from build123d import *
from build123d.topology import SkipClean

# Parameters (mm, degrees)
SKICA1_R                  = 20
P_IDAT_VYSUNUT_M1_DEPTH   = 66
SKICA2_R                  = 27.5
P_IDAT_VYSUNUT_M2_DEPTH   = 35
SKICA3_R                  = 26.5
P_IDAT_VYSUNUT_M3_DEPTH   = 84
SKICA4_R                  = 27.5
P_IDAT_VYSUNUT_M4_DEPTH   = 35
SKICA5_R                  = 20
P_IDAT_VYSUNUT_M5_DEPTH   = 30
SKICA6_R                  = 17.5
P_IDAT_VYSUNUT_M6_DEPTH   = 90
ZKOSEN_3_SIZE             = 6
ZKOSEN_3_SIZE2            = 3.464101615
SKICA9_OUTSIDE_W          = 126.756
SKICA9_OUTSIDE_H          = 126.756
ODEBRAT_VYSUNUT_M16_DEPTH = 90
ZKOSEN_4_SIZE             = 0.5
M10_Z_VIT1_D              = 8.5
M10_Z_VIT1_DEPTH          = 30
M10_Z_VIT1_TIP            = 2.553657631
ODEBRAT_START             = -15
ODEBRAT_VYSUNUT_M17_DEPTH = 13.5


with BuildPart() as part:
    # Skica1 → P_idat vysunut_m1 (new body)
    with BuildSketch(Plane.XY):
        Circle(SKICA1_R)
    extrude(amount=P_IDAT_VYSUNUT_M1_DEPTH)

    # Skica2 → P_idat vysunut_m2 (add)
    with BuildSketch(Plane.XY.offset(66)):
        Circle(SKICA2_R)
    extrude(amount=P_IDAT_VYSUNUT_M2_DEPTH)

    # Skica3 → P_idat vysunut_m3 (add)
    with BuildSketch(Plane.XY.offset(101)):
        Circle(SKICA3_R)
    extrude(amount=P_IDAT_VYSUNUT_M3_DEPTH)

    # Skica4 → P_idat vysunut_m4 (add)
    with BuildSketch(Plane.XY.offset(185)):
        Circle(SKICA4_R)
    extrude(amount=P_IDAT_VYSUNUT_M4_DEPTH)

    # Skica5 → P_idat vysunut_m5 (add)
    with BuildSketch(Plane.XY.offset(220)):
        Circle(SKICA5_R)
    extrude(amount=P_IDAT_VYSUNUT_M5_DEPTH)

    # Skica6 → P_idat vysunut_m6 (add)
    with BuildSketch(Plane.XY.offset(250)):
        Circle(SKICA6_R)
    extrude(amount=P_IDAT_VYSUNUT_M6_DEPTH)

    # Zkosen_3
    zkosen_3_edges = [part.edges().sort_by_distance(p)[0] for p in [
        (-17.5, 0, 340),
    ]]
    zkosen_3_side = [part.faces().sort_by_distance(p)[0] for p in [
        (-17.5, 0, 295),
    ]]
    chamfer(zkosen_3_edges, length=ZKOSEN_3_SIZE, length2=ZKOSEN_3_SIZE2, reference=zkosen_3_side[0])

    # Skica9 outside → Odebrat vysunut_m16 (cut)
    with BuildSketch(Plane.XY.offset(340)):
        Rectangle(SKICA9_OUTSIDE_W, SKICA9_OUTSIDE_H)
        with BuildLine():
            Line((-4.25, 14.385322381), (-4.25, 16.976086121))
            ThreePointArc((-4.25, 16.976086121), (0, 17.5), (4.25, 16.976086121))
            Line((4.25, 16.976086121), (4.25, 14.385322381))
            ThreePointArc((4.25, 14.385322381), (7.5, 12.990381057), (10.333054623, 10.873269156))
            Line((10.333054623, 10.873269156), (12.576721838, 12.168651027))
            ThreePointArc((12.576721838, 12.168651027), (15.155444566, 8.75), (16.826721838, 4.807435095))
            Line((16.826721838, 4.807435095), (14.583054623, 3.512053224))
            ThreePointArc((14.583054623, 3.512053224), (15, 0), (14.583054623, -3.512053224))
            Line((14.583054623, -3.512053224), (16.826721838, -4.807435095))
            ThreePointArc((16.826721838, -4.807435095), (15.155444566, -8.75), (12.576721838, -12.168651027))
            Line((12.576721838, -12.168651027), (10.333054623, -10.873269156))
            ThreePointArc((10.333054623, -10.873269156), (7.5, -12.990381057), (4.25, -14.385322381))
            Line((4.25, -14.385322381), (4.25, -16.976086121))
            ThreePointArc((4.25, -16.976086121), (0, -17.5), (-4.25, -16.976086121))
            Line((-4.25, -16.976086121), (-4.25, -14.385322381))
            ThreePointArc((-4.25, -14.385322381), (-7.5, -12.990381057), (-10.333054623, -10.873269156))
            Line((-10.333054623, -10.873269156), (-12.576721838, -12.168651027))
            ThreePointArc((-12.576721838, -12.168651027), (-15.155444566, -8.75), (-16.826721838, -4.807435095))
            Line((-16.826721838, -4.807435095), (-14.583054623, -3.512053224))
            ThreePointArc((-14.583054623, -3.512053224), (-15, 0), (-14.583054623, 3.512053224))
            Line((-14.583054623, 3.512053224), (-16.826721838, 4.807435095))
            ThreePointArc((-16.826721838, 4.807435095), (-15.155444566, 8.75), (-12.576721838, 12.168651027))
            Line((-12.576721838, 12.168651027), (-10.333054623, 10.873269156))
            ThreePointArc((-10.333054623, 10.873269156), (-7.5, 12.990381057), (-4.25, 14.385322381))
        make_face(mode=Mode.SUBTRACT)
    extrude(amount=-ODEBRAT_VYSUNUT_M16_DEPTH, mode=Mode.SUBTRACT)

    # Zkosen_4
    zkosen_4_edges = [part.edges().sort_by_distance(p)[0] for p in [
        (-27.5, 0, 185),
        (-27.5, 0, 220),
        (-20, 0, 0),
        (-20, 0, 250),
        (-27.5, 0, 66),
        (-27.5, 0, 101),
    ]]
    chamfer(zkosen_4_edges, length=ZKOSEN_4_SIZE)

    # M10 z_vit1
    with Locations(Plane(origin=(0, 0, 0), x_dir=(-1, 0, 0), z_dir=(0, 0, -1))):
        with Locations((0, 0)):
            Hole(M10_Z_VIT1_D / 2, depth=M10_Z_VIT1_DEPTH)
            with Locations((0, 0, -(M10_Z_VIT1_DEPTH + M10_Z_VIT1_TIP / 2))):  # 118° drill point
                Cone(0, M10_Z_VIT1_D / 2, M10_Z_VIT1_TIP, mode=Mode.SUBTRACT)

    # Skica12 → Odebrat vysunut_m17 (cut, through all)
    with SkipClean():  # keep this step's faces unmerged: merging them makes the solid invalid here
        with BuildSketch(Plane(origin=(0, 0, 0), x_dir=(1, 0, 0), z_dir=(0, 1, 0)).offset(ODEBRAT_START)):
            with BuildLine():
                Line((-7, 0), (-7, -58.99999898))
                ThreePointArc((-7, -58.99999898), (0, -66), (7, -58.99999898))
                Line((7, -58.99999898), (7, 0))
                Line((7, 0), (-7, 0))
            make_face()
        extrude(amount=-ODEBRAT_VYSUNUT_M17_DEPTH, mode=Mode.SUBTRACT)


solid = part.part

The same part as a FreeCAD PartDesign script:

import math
import FreeCAD as App
import Part
import Sketcher
from FreeCAD import Vector
Q = App.Units.Quantity


def edges_at(feature, points):
    """Names of the edges that pass closest to the given points."""
    edges = feature.Shape.Edges
    near = lambda p: min(range(len(edges)), key=lambda i: edges[i].distToShape(Part.Vertex(*p))[0])
    return sorted({f"Edge{near(p) + 1}" for p in points})

doc = App.newDocument("Part")
body = doc.addObject("PartDesign::Body", "Body")

# Sketch on XY plane
sketch1 = body.newObject("Sketcher::SketchObject", "Sketch")
sketch1.AttachmentSupport = (doc.getObject("XY_Plane"), [""])
sketch1.MapMode = "FlatFace"
sketch1.addGeometry(Part.Circle(Vector(0, 0, 0), Vector(0, 0, 1), 20), False)
sketch1.addConstraint(Sketcher.Constraint("Coincident", 0, 3, -1, 1))
sketch1.addConstraint(Sketcher.Constraint("Diameter", 0, 40.0))
pad1 = body.newObject("PartDesign::Pad", "Pad")
pad1.Profile = sketch1
pad1.Length = 66

# Sketch on XY plane
sketch2 = body.newObject("Sketcher::SketchObject", "Sketch001")
sketch2.AttachmentSupport = (doc.getObject("XY_Plane"), [""])
sketch2.MapMode = "FlatFace"
sketch2.AttachmentOffset = App.Placement(Vector(0, 0, 66), App.Rotation())
sketch2.addGeometry(Part.Circle(Vector(0, 0, 0), Vector(0, 0, 1), 27.5), False)
sketch2.addConstraint(Sketcher.Constraint("Coincident", 0, 3, -1, 1))
sketch2.addConstraint(Sketcher.Constraint("Diameter", 0, 55.0))
pad2 = body.newObject("PartDesign::Pad", "Pad001")
pad2.Profile = sketch2
pad2.Length = 35

# Sketch on XY plane
sketch3 = body.newObject("Sketcher::SketchObject", "Sketch002")
sketch3.AttachmentSupport = (doc.getObject("XY_Plane"), [""])
sketch3.MapMode = "FlatFace"
sketch3.AttachmentOffset = App.Placement(Vector(0, 0, 101), App.Rotation())
sketch3.addGeometry(Part.Circle(Vector(0, 0, 0), Vector(0, 0, 1), 26.5), False)
sketch3.addConstraint(Sketcher.Constraint("Coincident", 0, 3, -1, 1))
sketch3.addConstraint(Sketcher.Constraint("Diameter", 0, 53.0))
pad3 = body.newObject("PartDesign::Pad", "Pad002")
pad3.Profile = sketch3
pad3.Length = 84

# Sketch on XY plane
sketch4 = body.newObject("Sketcher::SketchObject", "Sketch003")
sketch4.AttachmentSupport = (doc.getObject("XY_Plane"), [""])
sketch4.MapMode = "FlatFace"
sketch4.AttachmentOffset = App.Placement(Vector(0, 0, 185), App.Rotation())
sketch4.addGeometry(Part.Circle(Vector(0, 0, 0), Vector(0, 0, 1), 27.5), False)
sketch4.addConstraint(Sketcher.Constraint("Coincident", 0, 3, -1, 1))
sketch4.addConstraint(Sketcher.Constraint("Diameter", 0, 55.0))
pad4 = body.newObject("PartDesign::Pad", "Pad003")
pad4.Profile = sketch4
pad4.Length = 35

# Sketch on XY plane
sketch5 = body.newObject("Sketcher::SketchObject", "Sketch004")
sketch5.AttachmentSupport = (doc.getObject("XY_Plane"), [""])
sketch5.MapMode = "FlatFace"
sketch5.AttachmentOffset = App.Placement(Vector(0, 0, 220), App.Rotation())
sketch5.addGeometry(Part.Circle(Vector(0, 0, 0), Vector(0, 0, 1), 20), False)
sketch5.addConstraint(Sketcher.Constraint("Coincident", 0, 3, -1, 1))
sketch5.addConstraint(Sketcher.Constraint("Diameter", 0, 40.0))
pad5 = body.newObject("PartDesign::Pad", "Pad004")
pad5.Profile = sketch5
pad5.Length = 30

# Sketch on XY plane
sketch6 = body.newObject("Sketcher::SketchObject", "Sketch005")
sketch6.AttachmentSupport = (doc.getObject("XY_Plane"), [""])
sketch6.MapMode = "FlatFace"
sketch6.AttachmentOffset = App.Placement(Vector(0, 0, 250), App.Rotation())
sketch6.addGeometry(Part.Circle(Vector(0, 0, 0), Vector(0, 0, 1), 17.5), False)
sketch6.addConstraint(Sketcher.Constraint("Coincident", 0, 3, -1, 1))
sketch6.addConstraint(Sketcher.Constraint("Diameter", 0, 35.0))
pad6 = body.newObject("PartDesign::Pad", "Pad005")
pad6.Profile = sketch6
pad6.Length = 90
doc.recompute()

chamfer = body.newObject("PartDesign::Chamfer", "Chamfer")
chamfer.Base = (pad6, edges_at(pad6, [(-17.5, 0, 340)]))
chamfer.ChamferType = "Two distances"
chamfer.Size = 6
chamfer.Size2 = 3.464102

# Sketch on XY plane
sketch7 = body.newObject("Sketcher::SketchObject", "Sketch006")
sketch7.AttachmentSupport = (doc.getObject("XY_Plane"), [""])
sketch7.MapMode = "FlatFace"
sketch7.AttachmentOffset = App.Placement(Vector(0, 0, 340), App.Rotation())
sketch7.addGeometry(Part.LineSegment(Vector(-63.378, 63.378, 0), Vector(-63.378, -63.378, 0)), False)
sketch7.addGeometry(Part.LineSegment(Vector(-63.378, -63.378, 0), Vector(63.378, -63.378, 0)), False)
sketch7.addGeometry(Part.LineSegment(Vector(63.378, -63.378, 0), Vector(63.378, 63.378, 0)), False)
sketch7.addGeometry(Part.LineSegment(Vector(63.378, 63.378, 0), Vector(-63.378, 63.378, 0)), False)
sketch7.addGeometry(Part.ArcOfCircle(Part.Circle(Vector(0, 0, 0), Vector(0, 0, 1), 15), math.radians(106.45925), math.radians(133.54075)), False)
sketch7.addGeometry(Part.LineSegment(Vector(-4.25, 14.385322, 0), Vector(-4.25, 16.976086, 0)), False)
sketch7.addGeometry(Part.ArcOfCircle(Part.Circle(Vector(0, 0, 0), Vector(0, 0, 1), 17.5), math.radians(75.944767), math.radians(104.055233)), False)
sketch7.addGeometry(Part.LineSegment(Vector(4.25, 16.976086, 0), Vector(4.25, 14.385322, 0)), False)
sketch7.addGeometry(Part.ArcOfCircle(Part.Circle(Vector(0, 0, 0), Vector(0, 0, 1), 15), math.radians(46.45925), math.radians(73.54075)), False)
sketch7.addGeometry(Part.LineSegment(Vector(10.333055, 10.873269, 0), Vector(12.576722, 12.168651, 0)), False)
sketch7.addGeometry(Part.ArcOfCircle(Part.Circle(Vector(0, 0, 0), Vector(0, 0, 1), 17.5), math.radians(15.944767), math.radians(44.055233)), False)
sketch7.addGeometry(Part.LineSegment(Vector(16.826722, 4.807435, 0), Vector(14.583055, 3.512053, 0)), False)
sketch7.addGeometry(Part.ArcOfCircle(Part.Circle(Vector(0, 0, 0), Vector(0, 0, 1), 15), math.radians(-13.54075), math.radians(13.54075)), False)
sketch7.addGeometry(Part.LineSegment(Vector(14.583055, -3.512053, 0), Vector(16.826722, -4.807435, 0)), False)
sketch7.addGeometry(Part.ArcOfCircle(Part.Circle(Vector(0, 0, 0), Vector(0, 0, 1), 17.5), math.radians(-44.055233), math.radians(-15.944767)), False)
sketch7.addGeometry(Part.LineSegment(Vector(12.576722, -12.168651, 0), Vector(10.333055, -10.873269, 0)), False)
sketch7.addGeometry(Part.ArcOfCircle(Part.Circle(Vector(0, 0, 0), Vector(0, 0, 1), 15), math.radians(-73.54075), math.radians(-46.45925)), False)
sketch7.addGeometry(Part.LineSegment(Vector(4.25, -14.385322, 0), Vector(4.25, -16.976086, 0)), False)
sketch7.addGeometry(Part.ArcOfCircle(Part.Circle(Vector(0, 0, 0), Vector(0, 0, 1), 17.5), math.radians(-104.055233), math.radians(-75.944767)), False)
sketch7.addGeometry(Part.LineSegment(Vector(-4.25, -16.976086, 0), Vector(-4.25, -14.385322, 0)), False)
sketch7.addGeometry(Part.ArcOfCircle(Part.Circle(Vector(0, 0, 0), Vector(0, 0, 1), 15), math.radians(-133.54075), math.radians(-106.45925)), False)
sketch7.addGeometry(Part.LineSegment(Vector(-10.333055, -10.873269, 0), Vector(-12.576722, -12.168651, 0)), False)
sketch7.addGeometry(Part.ArcOfCircle(Part.Circle(Vector(0, 0, 0), Vector(0, 0, 1), 17.5), math.radians(-164.055233), math.radians(-135.944767)), False)
sketch7.addGeometry(Part.LineSegment(Vector(-16.826722, -4.807435, 0), Vector(-14.583055, -3.512053, 0)), False)
sketch7.addGeometry(Part.ArcOfCircle(Part.Circle(Vector(0, 0, 0), Vector(0, 0, 1), 15), math.radians(166.45925), math.radians(193.54075)), False)
sketch7.addGeometry(Part.LineSegment(Vector(-14.583055, 3.512053, 0), Vector(-16.826722, 4.807435, 0)), False)
sketch7.addGeometry(Part.ArcOfCircle(Part.Circle(Vector(0, 0, 0), Vector(0, 0, 1), 17.5), math.radians(135.944767), math.radians(164.055233)), False)
sketch7.addGeometry(Part.LineSegment(Vector(-12.576722, 12.168651, 0), Vector(-10.333055, 10.873269, 0)), False)
sketch7.addConstraint(Sketcher.Constraint("Coincident", 0, 2, 1, 1))
sketch7.addConstraint(Sketcher.Constraint("Coincident", 1, 2, 2, 1))
sketch7.addConstraint(Sketcher.Constraint("Coincident", 2, 2, 3, 1))
sketch7.addConstraint(Sketcher.Constraint("Coincident", 3, 2, 0, 1))
sketch7.addConstraint(Sketcher.Constraint("Coincident", 4, 1, 5, 1))
sketch7.addConstraint(Sketcher.Constraint("Coincident", 5, 2, 6, 2))
sketch7.addConstraint(Sketcher.Constraint("Coincident", 6, 1, 7, 1))
sketch7.addConstraint(Sketcher.Constraint("Coincident", 7, 2, 8, 2))
sketch7.addConstraint(Sketcher.Constraint("Coincident", 8, 1, 9, 1))
sketch7.addConstraint(Sketcher.Constraint("Coincident", 9, 2, 10, 2))
sketch7.addConstraint(Sketcher.Constraint("Coincident", 10, 1, 11, 1))
sketch7.addConstraint(Sketcher.Constraint("Coincident", 11, 2, 12, 2))
sketch7.addConstraint(Sketcher.Constraint("Coincident", 12, 1, 13, 1))
sketch7.addConstraint(Sketcher.Constraint("Coincident", 13, 2, 14, 2))
sketch7.addConstraint(Sketcher.Constraint("Coincident", 14, 1, 15, 1))
sketch7.addConstraint(Sketcher.Constraint("Coincident", 15, 2, 16, 2))
sketch7.addConstraint(Sketcher.Constraint("Coincident", 16, 1, 17, 1))
sketch7.addConstraint(Sketcher.Constraint("Coincident", 17, 2, 18, 2))
sketch7.addConstraint(Sketcher.Constraint("Coincident", 18, 1, 19, 1))
sketch7.addConstraint(Sketcher.Constraint("Coincident", 19, 2, 20, 2))
sketch7.addConstraint(Sketcher.Constraint("Coincident", 20, 1, 21, 1))
sketch7.addConstraint(Sketcher.Constraint("Coincident", 21, 2, 22, 2))
sketch7.addConstraint(Sketcher.Constraint("Coincident", 22, 1, 23, 1))
sketch7.addConstraint(Sketcher.Constraint("Coincident", 23, 2, 24, 2))
sketch7.addConstraint(Sketcher.Constraint("Coincident", 24, 1, 25, 1))
sketch7.addConstraint(Sketcher.Constraint("Coincident", 25, 2, 26, 2))
sketch7.addConstraint(Sketcher.Constraint("Coincident", 26, 1, 27, 1))
sketch7.addConstraint(Sketcher.Constraint("Coincident", 27, 2, 4, 2))
sketch7.addConstraint(Sketcher.Constraint("Vertical", 0))
sketch7.addConstraint(Sketcher.Constraint("Horizontal", 1))
sketch7.addConstraint(Sketcher.Constraint("Vertical", 2))
sketch7.addConstraint(Sketcher.Constraint("Horizontal", 3))
sketch7.addConstraint(Sketcher.Constraint("Vertical", 5))
sketch7.addConstraint(Sketcher.Constraint("Vertical", 7))
sketch7.addConstraint(Sketcher.Constraint("Vertical", 17))
sketch7.addConstraint(Sketcher.Constraint("Vertical", 19))
sketch7.addConstraint(Sketcher.Constraint("Coincident", 4, 3, -1, 1))
sketch7.addConstraint(Sketcher.Constraint("Coincident", 6, 3, -1, 1))
sketch7.addConstraint(Sketcher.Constraint("Coincident", 8, 3, -1, 1))
sketch7.addConstraint(Sketcher.Constraint("Coincident", 10, 3, -1, 1))
sketch7.addConstraint(Sketcher.Constraint("Coincident", 12, 3, -1, 1))
sketch7.addConstraint(Sketcher.Constraint("Coincident", 14, 3, -1, 1))
sketch7.addConstraint(Sketcher.Constraint("Coincident", 16, 3, -1, 1))
sketch7.addConstraint(Sketcher.Constraint("Coincident", 18, 3, -1, 1))
sketch7.addConstraint(Sketcher.Constraint("Coincident", 20, 3, -1, 1))
sketch7.addConstraint(Sketcher.Constraint("Coincident", 22, 3, -1, 1))
sketch7.addConstraint(Sketcher.Constraint("Coincident", 24, 3, -1, 1))
sketch7.addConstraint(Sketcher.Constraint("Coincident", 26, 3, -1, 1))
sketch7.addConstraint(Sketcher.Constraint("Equal", 4, 8))
sketch7.addConstraint(Sketcher.Constraint("Equal", 6, 10))
sketch7.addConstraint(Sketcher.Constraint("Equal", 8, 12))
sketch7.addConstraint(Sketcher.Constraint("Equal", 10, 14))
sketch7.addConstraint(Sketcher.Constraint("Equal", 12, 16))
sketch7.addConstraint(Sketcher.Constraint("Equal", 14, 18))
sketch7.addConstraint(Sketcher.Constraint("Equal", 16, 20))
sketch7.addConstraint(Sketcher.Constraint("Equal", 18, 22))
sketch7.addConstraint(Sketcher.Constraint("Equal", 20, 24))
sketch7.addConstraint(Sketcher.Constraint("Equal", 22, 26))
sketch7.addConstraint(Sketcher.Constraint("Symmetric", 0, 2, 2, 2, -1, 1))
sketch7.addConstraint(Sketcher.Constraint("Parallel", 9, 11))
sketch7.addConstraint(Sketcher.Constraint("Parallel", 13, 15))
sketch7.addConstraint(Sketcher.Constraint("Parallel", 11, 21))
sketch7.addConstraint(Sketcher.Constraint("Parallel", 21, 23))
sketch7.addConstraint(Sketcher.Constraint("Parallel", 15, 25))
sketch7.addConstraint(Sketcher.Constraint("Parallel", 25, 27))
sketch7.addConstraint(Sketcher.Constraint("Horizontal", 5, 2, 6, 1))
sketch7.addConstraint(Sketcher.Constraint("Horizontal", 17, 2, 18, 1))
sketch7.addConstraint(Sketcher.Constraint("Horizontal", 15, 2, 20, 1))
sketch7.addConstraint(Sketcher.Constraint("Horizontal", 14, 1, 21, 2))
sketch7.addConstraint(Sketcher.Constraint("Horizontal", 13, 2, 22, 1))
sketch7.addConstraint(Sketcher.Constraint("Horizontal", 11, 2, 24, 1))
sketch7.addConstraint(Sketcher.Constraint("Horizontal", 9, 2, 26, 1))
sketch7.addConstraint(Sketcher.Constraint("Vertical", 11, 2, 12, 1))
sketch7.addConstraint(Sketcher.Constraint("Vertical", 9, 2, 14, 1))
sketch7.addConstraint(Sketcher.Constraint("Vertical", 7, 2, 16, 1))
sketch7.addConstraint(Sketcher.Constraint("Equal", 3, 0))
sketch7.addConstraint(Sketcher.Constraint("Equal", 9, 11))
sketch7.addConstraint(Sketcher.Constraint("Radius", 4, 15.0))
sketch7.addConstraint(Sketcher.Constraint("Radius", 6, 17.5))
sketch7.addConstraint(Sketcher.Constraint("Angle", 9, Q("30 deg")))
sketch7.addConstraint(Sketcher.Constraint("DistanceX", 5, 2, 6, 1, 8.5))
sketch7.addConstraint(Sketcher.Constraint("DistanceX", 1, 1, 1, 2, 126.756))
sketch7.addConstraint(Sketcher.Constraint("DistanceX", 9, 2, 10, 1, 4.25))
pocket1 = body.newObject("PartDesign::Pocket", "Pocket")
pocket1.Profile = sketch7
pocket1.Length = 90
doc.recompute()

chamfer2 = body.newObject("PartDesign::Chamfer", "Chamfer001")
chamfer2.Base = (pocket1, edges_at(pocket1, [
    (-27.5, 0, 185),
    (-27.5, 0, 220),
    (-20, 0, 0),
    (-20, 0, 250),
    (-27.5, 0, 66),
    (-27.5, 0, 101),
]))
chamfer2.Size = 0.5

# Sketch on XY plane
sketch8 = body.newObject("Sketcher::SketchObject", "Sketch007")
sketch8.AttachmentSupport = (doc.getObject("XY_Plane"), [""])
sketch8.MapMode = "FlatFace"
sketch8.addGeometry(Part.Circle(Vector(0, 0, 0), Vector(0, 0, 1), 4.25), False)
sketch8.addConstraint(Sketcher.Constraint("Coincident", 0, 3, -1, 1))
sketch8.addConstraint(Sketcher.Constraint("Diameter", 0, 8.5))
doc.recompute()
hole = body.newObject("PartDesign::Hole", "Hole")
hole.Profile = sketch8
hole.ThreadType = "None"
hole.Diameter = 8.5
hole.DepthType = "Dimension"
hole.Depth = 30
hole.DrillPoint = "Angled"
hole.DrillPointAngle = 118
hole.Reversed = True

# Sketch on XZ plane
sketch9 = body.newObject("Sketcher::SketchObject", "Sketch008")
sketch9.AttachmentSupport = (doc.getObject("XZ_Plane"), [""])
sketch9.MapMode = "FlatFace"
sketch9.AttachmentOffset = App.Placement(Vector(0, 0, 15), App.Rotation())
sketch9.addGeometry(Part.LineSegment(Vector(-7, 0, 0), Vector(-7, 58.999999, 0)), False)
sketch9.addGeometry(Part.ArcOfCircle(Part.Circle(Vector(0, 59, 0), Vector(0, 0, 1), 7), math.radians(-0.000008), math.radians(180.000008)), False)
sketch9.addGeometry(Part.LineSegment(Vector(7, 58.999999, 0), Vector(7, 0, 0)), False)
sketch9.addGeometry(Part.LineSegment(Vector(7, 0, 0), Vector(-7, 0, 0)), False)
sketch9.addConstraint(Sketcher.Constraint("Tangent", 0, 2, 1, 2))
sketch9.addConstraint(Sketcher.Constraint("Tangent", 1, 1, 2, 1))
sketch9.addConstraint(Sketcher.Constraint("Coincident", 2, 2, 3, 1))
sketch9.addConstraint(Sketcher.Constraint("Coincident", 3, 2, 0, 1))
sketch9.addConstraint(Sketcher.Constraint("Vertical", 0))
sketch9.addConstraint(Sketcher.Constraint("Vertical", 2))
sketch9.addConstraint(Sketcher.Constraint("Horizontal", 3))
sketch9.addConstraint(Sketcher.Constraint("Symmetric", 2, 2, 3, 2, -1, 1))
sketch9.addConstraint(Sketcher.Constraint("Radius", 1, 7.0))
sketch9.addConstraint(Sketcher.Constraint("DistanceY", 0, 1, 0, 2, 58.999999))
pocket2 = body.newObject("PartDesign::Pocket", "Pocket001")
pocket2.Profile = sketch9
pocket2.Type = "ThroughAll"
pocket2.Reversed = True

doc.recompute()
